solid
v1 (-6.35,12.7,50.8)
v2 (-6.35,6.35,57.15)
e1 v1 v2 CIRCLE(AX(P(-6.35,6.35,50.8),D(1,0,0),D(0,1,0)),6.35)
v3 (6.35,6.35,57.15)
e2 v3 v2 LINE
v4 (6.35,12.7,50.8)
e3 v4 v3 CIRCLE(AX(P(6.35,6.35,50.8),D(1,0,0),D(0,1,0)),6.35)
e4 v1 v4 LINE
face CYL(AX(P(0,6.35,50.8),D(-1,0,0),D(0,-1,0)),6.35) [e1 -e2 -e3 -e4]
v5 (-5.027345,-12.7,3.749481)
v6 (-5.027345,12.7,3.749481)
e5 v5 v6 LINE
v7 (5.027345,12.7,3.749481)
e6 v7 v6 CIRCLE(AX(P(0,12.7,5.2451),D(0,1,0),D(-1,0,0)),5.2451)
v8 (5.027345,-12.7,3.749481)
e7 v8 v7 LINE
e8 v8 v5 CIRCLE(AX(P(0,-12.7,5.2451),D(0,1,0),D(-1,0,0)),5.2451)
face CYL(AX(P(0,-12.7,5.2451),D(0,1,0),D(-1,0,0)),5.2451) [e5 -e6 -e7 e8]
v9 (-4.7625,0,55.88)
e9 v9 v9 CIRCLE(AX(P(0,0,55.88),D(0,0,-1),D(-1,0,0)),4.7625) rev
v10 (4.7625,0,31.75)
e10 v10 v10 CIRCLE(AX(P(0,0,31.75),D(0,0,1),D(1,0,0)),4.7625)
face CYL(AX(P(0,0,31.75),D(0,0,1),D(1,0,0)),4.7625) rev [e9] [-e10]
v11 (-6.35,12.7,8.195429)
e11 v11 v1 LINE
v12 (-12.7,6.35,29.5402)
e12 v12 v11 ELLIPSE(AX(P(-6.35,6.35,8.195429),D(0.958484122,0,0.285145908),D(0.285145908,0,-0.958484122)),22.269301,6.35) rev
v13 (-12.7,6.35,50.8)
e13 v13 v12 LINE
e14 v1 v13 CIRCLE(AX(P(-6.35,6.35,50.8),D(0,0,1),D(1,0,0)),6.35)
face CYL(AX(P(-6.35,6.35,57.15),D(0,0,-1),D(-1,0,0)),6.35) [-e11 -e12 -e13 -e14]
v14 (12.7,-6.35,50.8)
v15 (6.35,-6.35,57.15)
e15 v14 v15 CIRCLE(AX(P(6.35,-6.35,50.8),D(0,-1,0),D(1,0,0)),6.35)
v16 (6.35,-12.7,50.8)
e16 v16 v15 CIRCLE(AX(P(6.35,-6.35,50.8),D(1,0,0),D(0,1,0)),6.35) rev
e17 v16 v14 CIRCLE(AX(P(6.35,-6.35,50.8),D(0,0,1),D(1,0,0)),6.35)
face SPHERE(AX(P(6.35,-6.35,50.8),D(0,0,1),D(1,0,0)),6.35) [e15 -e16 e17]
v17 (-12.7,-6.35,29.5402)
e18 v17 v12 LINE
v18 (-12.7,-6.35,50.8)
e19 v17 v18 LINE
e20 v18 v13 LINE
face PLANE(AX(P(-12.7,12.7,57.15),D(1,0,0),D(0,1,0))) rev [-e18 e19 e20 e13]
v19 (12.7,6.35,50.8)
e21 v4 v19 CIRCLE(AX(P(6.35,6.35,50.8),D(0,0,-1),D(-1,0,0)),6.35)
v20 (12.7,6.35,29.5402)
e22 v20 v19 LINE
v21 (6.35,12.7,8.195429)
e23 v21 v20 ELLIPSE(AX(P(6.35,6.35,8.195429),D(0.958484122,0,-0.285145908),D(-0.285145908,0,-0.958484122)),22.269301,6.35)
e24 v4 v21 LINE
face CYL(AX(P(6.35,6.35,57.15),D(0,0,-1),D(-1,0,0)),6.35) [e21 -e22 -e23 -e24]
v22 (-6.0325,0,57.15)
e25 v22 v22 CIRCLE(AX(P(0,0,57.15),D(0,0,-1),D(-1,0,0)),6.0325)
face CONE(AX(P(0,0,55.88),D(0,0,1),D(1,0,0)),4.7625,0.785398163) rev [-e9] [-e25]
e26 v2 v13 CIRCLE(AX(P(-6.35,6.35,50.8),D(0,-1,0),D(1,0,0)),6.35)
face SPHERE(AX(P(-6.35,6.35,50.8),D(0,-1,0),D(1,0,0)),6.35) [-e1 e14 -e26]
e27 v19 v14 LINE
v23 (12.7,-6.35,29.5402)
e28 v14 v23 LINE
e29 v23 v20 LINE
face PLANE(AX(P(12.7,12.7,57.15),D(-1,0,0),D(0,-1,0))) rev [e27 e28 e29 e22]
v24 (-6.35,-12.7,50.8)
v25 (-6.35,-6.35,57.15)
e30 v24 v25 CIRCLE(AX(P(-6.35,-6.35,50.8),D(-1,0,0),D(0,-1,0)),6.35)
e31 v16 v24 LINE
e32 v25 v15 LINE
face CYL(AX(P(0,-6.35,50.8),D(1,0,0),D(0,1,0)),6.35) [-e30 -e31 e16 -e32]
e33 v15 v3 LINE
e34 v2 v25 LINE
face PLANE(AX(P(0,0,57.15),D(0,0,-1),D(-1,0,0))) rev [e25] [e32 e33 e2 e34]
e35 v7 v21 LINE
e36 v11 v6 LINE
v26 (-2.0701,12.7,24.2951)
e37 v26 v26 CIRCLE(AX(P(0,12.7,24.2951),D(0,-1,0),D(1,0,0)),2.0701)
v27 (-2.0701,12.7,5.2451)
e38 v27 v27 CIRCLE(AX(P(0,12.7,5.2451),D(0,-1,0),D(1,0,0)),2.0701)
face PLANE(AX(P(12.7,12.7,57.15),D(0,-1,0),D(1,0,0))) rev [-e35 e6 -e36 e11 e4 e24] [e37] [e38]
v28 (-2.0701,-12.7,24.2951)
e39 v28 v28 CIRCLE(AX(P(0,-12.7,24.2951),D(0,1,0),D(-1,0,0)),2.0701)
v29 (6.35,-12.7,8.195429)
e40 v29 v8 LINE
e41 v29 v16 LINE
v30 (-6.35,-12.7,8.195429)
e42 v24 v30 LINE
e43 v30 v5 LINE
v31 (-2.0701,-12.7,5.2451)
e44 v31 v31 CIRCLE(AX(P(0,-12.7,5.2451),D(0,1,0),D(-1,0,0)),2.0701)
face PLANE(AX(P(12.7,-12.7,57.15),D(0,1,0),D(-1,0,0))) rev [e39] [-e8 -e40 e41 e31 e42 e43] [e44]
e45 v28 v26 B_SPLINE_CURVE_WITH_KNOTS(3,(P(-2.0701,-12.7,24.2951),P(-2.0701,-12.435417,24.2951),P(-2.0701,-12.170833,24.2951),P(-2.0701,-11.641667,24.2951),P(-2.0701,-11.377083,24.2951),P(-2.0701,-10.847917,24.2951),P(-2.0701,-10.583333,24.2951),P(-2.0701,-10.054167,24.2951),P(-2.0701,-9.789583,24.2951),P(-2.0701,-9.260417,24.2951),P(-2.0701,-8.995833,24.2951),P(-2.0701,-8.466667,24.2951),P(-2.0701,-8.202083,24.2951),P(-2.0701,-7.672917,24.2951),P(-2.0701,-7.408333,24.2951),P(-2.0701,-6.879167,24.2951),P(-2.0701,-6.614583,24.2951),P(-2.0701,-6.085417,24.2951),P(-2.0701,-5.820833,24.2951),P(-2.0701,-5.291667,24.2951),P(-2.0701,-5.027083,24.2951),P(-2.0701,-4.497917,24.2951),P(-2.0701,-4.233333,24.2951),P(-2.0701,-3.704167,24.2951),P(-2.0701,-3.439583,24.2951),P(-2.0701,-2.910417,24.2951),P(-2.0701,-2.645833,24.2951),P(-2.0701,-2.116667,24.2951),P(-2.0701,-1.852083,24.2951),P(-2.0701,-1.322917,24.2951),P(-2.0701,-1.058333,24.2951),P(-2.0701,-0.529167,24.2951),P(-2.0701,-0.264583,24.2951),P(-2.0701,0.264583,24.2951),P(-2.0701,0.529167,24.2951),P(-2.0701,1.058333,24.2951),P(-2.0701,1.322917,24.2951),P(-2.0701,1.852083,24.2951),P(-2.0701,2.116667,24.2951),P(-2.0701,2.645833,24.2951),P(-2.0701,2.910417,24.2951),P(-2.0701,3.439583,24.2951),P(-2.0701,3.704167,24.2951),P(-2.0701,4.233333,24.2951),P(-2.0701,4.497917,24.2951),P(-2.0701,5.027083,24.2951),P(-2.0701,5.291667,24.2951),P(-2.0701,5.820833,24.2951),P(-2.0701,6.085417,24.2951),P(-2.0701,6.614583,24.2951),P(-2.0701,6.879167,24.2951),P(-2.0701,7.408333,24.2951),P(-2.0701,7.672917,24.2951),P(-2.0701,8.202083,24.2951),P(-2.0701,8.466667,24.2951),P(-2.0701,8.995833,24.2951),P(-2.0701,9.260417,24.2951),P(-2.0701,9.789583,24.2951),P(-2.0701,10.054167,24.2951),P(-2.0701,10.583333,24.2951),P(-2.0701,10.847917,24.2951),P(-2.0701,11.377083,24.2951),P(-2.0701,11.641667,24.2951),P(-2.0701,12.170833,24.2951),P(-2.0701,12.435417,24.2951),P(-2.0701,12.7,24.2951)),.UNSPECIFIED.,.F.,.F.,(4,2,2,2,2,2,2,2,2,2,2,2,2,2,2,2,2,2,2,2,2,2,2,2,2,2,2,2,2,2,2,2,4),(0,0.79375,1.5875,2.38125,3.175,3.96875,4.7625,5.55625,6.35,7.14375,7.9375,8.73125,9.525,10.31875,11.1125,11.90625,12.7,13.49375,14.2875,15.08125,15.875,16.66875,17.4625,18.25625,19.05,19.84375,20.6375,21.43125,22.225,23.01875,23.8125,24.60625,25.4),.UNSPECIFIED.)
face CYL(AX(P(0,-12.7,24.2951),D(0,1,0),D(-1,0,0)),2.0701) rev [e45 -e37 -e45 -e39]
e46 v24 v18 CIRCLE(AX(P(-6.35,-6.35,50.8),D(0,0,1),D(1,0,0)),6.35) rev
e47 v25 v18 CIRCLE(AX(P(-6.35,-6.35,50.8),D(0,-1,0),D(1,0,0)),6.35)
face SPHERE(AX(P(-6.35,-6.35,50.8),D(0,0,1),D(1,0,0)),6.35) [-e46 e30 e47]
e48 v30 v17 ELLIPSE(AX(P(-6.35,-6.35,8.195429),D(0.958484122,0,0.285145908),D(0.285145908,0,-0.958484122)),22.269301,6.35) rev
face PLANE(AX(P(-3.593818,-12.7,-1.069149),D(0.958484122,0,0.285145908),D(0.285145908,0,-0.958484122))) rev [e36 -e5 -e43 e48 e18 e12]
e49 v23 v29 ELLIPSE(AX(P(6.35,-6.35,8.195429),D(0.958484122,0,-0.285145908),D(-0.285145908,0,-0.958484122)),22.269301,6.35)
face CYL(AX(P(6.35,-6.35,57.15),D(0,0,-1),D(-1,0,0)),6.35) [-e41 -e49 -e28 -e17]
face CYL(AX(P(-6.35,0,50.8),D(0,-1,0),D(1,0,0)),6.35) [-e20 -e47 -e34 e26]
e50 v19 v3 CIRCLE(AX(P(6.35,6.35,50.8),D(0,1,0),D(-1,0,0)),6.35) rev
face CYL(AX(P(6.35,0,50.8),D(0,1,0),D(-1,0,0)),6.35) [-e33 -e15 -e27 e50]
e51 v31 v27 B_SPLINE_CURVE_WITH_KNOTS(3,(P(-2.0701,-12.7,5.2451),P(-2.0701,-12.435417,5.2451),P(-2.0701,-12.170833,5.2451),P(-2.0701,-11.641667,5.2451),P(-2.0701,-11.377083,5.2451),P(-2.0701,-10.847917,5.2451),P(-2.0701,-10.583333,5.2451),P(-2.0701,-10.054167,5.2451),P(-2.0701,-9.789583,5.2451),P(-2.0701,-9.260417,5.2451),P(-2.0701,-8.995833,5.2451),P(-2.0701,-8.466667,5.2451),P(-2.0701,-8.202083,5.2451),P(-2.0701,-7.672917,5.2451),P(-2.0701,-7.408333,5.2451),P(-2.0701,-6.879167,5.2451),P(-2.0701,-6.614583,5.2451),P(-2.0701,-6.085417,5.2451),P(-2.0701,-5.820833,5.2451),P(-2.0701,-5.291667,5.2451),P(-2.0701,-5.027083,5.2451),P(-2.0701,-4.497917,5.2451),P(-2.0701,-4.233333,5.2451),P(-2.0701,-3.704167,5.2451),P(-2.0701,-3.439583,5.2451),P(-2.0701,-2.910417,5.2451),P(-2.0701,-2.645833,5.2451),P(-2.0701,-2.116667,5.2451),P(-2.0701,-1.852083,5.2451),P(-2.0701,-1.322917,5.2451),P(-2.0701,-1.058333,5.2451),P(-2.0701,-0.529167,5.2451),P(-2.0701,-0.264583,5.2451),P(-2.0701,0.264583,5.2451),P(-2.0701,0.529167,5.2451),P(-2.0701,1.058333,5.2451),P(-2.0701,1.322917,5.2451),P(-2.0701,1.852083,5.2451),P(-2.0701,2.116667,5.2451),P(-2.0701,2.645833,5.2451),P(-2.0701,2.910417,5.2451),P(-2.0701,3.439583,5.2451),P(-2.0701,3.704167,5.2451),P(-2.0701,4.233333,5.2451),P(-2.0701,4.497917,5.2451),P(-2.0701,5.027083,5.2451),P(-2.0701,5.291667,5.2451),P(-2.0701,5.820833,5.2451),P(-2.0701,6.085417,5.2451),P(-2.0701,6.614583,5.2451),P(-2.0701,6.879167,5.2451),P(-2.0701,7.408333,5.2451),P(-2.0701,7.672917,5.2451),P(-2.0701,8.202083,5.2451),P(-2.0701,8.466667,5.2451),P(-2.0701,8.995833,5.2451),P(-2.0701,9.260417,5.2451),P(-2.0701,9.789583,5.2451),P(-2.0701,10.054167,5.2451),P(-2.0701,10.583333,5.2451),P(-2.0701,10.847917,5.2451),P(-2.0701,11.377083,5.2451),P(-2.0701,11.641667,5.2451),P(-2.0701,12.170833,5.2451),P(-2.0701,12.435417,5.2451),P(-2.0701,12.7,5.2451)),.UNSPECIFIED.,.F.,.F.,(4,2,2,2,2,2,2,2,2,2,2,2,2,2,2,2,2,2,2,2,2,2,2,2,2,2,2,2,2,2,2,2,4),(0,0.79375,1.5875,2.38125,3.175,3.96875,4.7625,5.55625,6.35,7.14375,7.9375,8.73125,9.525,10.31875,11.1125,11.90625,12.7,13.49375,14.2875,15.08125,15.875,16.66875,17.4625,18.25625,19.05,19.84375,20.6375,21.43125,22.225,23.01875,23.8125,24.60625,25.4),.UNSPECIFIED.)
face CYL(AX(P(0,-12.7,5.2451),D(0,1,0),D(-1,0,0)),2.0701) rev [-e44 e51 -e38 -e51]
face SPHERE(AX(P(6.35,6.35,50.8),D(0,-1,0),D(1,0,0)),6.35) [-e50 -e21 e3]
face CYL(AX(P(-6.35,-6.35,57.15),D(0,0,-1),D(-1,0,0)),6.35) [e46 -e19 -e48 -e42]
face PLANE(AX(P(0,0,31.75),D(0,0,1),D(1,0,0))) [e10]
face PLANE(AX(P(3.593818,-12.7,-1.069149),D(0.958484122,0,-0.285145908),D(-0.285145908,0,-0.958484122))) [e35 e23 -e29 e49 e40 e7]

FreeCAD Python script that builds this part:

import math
import FreeCAD as App
import Part
import Sketcher

V = App.Vector
Q = App.Units.Quantity


def edges_at(feature, points):
    """Names of the edges that pass closest to the given points."""
    edges = feature.Shape.Edges
    near = lambda p: min(range(len(edges)), key=lambda i: edges[i].distToShape(Part.Vertex(*p))[0])
    return sorted({f"Edge{near(p) + 1}" for p in points})

doc = App.newDocument("Part")
body = doc.addObject("PartDesign::Body", "Body")

# Sketch on XY plane
sketch1 = body.newObject("Sketcher::SketchObject", "Sketch")
sketch1.AttachmentSupport = (doc.getObject("XY_Plane"), [""])
sketch1.MapMode = "FlatFace"
sketch1.addGeometry(Part.LineSegment(V(-13, 13, 0), V(-13, -13, 0)), False)
sketch1.addGeometry(Part.LineSegment(V(-13, -13, 0), V(13, -13, 0)), False)
sketch1.addGeometry(Part.LineSegment(V(13, -13, 0), V(13, 13, 0)), False)
sketch1.addGeometry(Part.LineSegment(V(13, 13, 0), V(-13, 13, 0)), False)
sketch1.addConstraint(Sketcher.Constraint("Coincident", 0, 2, 1, 1))
sketch1.addConstraint(Sketcher.Constraint("Coincident", 1, 2, 2, 1))
sketch1.addConstraint(Sketcher.Constraint("Coincident", 2, 2, 3, 1))
sketch1.addConstraint(Sketcher.Constraint("Coincident", 3, 2, 0, 1))
sketch1.addConstraint(Sketcher.Constraint("Vertical", 0))
sketch1.addConstraint(Sketcher.Constraint("Horizontal", 1))
sketch1.addConstraint(Sketcher.Constraint("Vertical", 2))
sketch1.addConstraint(Sketcher.Constraint("Horizontal", 3))
sketch1.addConstraint(Sketcher.Constraint("Symmetric", 0, 2, 2, 2, -1, 1))
sketch1.addConstraint(Sketcher.Constraint("Equal", 3, 0))
sketch1.addConstraint(Sketcher.Constraint("DistanceX", 1, 1, 1, 2, Q("1 in")))
pad1 = body.newObject("PartDesign::Pad", "Pad")
pad1.Profile = sketch1
pad1.Length = Q("2.25 in")

# Sketch on XZ plane
sketch2 = body.newObject("Sketcher::SketchObject", "Sketch001")
sketch2.AttachmentSupport = (doc.getObject("XZ_Plane"), [""])
sketch2.MapMode = "FlatFace"
sketch2.AttachmentOffset = App.Placement(V(0, 0, -0.5 * 25.4), App.Rotation())
sketch2.addGeometry(Part.LineSegment(V(-12.7, 0, 0), V(-12.7, 29.5, 0)), False)
sketch2.addGeometry(Part.LineSegment(V(-12.7, 29.5, 0), V(-5, 3.7, 0)), False)
sketch2.addGeometry(Part.ArcOfCircle(Part.Circle(V(0, 5.2, 0), V(0, 0, 1), 5.2), math.radians(-163), math.radians(-90)), False)
sketch2.addGeometry(Part.LineSegment(V(0, 0, 0), V(-12.7, 0, 0)), False)
sketch2.addGeometry(Part.LineSegment(V(5, 3.7, 0), V(12.7, 29.5, 0)), False)
sketch2.addGeometry(Part.LineSegment(V(12.7, 29.5, 0), V(12.7, 0, 0)), False)
sketch2.addGeometry(Part.LineSegment(V(12.7, 0, 0), V(0, 0, 0)), False)
sketch2.addGeometry(Part.ArcOfCircle(Part.Circle(V(0, 5.2, 0), V(0, 0, 1), 5.2), math.radians(-90), math.radians(-17)), False)
sketch2.addGeometry(Part.Circle(V(0, 5.2, 0), V(0, 0, 1), 2.1), False)
sketch2.addGeometry(Part.Circle(V(0, 24.3, 0), V(0, 0, 1), 2.1), False)
sketch2.addConstraint(Sketcher.Constraint("Coincident", 0, 2, 1, 1))
sketch2.addConstraint(Sketcher.Constraint("Tangent", 1, 2, 2, 1))
sketch2.addConstraint(Sketcher.Constraint("Tangent", 2, 2, 3, 1))
sketch2.addConstraint(Sketcher.Constraint("Coincident", 3, 2, 0, 1))
sketch2.addConstraint(Sketcher.Constraint("Coincident", 4, 2, 5, 1))
sketch2.addConstraint(Sketcher.Constraint("Coincident", 5, 2, 6, 1))
sketch2.addConstraint(Sketcher.Constraint("Tangent", 6, 2, 7, 1))
sketch2.addConstraint(Sketcher.Constraint("Tangent", 7, 2, 4, 1))
sketch2.addConstraint(Sketcher.Constraint("Vertical", 0))
sketch2.addConstraint(Sketcher.Constraint("Horizontal", 3))
sketch2.addConstraint(Sketcher.Constraint("Vertical", 5))
sketch2.addConstraint(Sketcher.Constraint("Horizontal", 6))
sketch2.addConstraint(Sketcher.Constraint("Coincident", 2, 2, -1, 1))
sketch2.addConstraint(Sketcher.Constraint("Coincident", 6, 2, -1, 1))
sketch2.addConstraint(Sketcher.Constraint("Coincident", 8, 3, 2, 3))
sketch2.addConstraint(Sketcher.Constraint("Equal", 2, 7))
sketch2.addConstraint(Sketcher.Constraint("Equal", 8, 9))
sketch2.addConstraint(Sketcher.Constraint("Symmetric", 0, 2, 4, 2, -2))
sketch2.addConstraint(Sketcher.Constraint("PointOnObject", 9, 3, -2))
sketch2.addConstraint(Sketcher.Constraint("Diameter", 8, Q("0.163 in")))
sketch2.addConstraint(Sketcher.Constraint("DistanceX", 3, 2, 3, 1, Q("0.5 in")))
sketch2.addConstraint(Sketcher.Constraint("Radius", 2, Q("0.2065 in")))
sketch2.addConstraint(Sketcher.Constraint("DistanceY", 0, 1, 0, 2, Q("1.163 in")))
sketch2.addConstraint(Sketcher.Constraint("DistanceY", 2, 3, 9, 3, Q("0.75 in")))
pocket1 = body.newObject("PartDesign::Pocket", "Pocket")
pocket1.Profile = sketch2
pocket1.Type = "ThroughAll"
pocket1.Midplane = True

# Sketch on XY plane
sketch3 = body.newObject("Sketcher::SketchObject", "Sketch002")
sketch3.AttachmentSupport = (doc.getObject("XY_Plane"), [""])
sketch3.MapMode = "FlatFace"
sketch3.AttachmentOffset = App.Placement(V(0, 0, 2.25 * 25.4), App.Rotation())
sketch3.addGeometry(Part.Circle(V(0, 0, 0), V(0, 0, 1), 4.8), False)
sketch3.addConstraint(Sketcher.Constraint("Coincident", 0, 3, -1, 1))
sketch3.addConstraint(Sketcher.Constraint("Diameter", 0, Q("0.375 in")))
pocket2 = body.newObject("PartDesign::Pocket", "Pocket001")
pocket2.Profile = sketch3
pocket2.Length = Q("1 in")
doc.recompute()

chamfer = body.newObject("PartDesign::Chamfer", "Chamfer")
chamfer.Base = (pocket2, edges_at(pocket2, [(-4.763, 0, 57.15)]))
chamfer.Size = Q("0.05 in")
doc.recompute()

fillet = body.newObject("PartDesign::Fillet", "Fillet")
fillet.Base = (chamfer, edges_at(chamfer, [
    (12.7, 0, 57.15),
    (-12.7, 0, 57.15),
    (0, -12.7, 57.15),
    (12.7, -12.7, 43.345),
    (-12.7, -12.7, 43.345),
]))
fillet.Radius = Q("0.25 in")
doc.recompute()

fillet2 = body.newObject("PartDesign::Fillet", "Fillet001")
fillet2.Base = (fillet, edges_at(fillet, [
    (-12.7, 12.7, 40.17),
    (12.7, 12.7, 40.17),
    (0, 12.7, 57.15),
    (10.84, 12.7, 55.29),
    (-10.84, 12.7, 55.29),
]))
fillet2.Radius = Q("0.25 in")

doc.recompute()
